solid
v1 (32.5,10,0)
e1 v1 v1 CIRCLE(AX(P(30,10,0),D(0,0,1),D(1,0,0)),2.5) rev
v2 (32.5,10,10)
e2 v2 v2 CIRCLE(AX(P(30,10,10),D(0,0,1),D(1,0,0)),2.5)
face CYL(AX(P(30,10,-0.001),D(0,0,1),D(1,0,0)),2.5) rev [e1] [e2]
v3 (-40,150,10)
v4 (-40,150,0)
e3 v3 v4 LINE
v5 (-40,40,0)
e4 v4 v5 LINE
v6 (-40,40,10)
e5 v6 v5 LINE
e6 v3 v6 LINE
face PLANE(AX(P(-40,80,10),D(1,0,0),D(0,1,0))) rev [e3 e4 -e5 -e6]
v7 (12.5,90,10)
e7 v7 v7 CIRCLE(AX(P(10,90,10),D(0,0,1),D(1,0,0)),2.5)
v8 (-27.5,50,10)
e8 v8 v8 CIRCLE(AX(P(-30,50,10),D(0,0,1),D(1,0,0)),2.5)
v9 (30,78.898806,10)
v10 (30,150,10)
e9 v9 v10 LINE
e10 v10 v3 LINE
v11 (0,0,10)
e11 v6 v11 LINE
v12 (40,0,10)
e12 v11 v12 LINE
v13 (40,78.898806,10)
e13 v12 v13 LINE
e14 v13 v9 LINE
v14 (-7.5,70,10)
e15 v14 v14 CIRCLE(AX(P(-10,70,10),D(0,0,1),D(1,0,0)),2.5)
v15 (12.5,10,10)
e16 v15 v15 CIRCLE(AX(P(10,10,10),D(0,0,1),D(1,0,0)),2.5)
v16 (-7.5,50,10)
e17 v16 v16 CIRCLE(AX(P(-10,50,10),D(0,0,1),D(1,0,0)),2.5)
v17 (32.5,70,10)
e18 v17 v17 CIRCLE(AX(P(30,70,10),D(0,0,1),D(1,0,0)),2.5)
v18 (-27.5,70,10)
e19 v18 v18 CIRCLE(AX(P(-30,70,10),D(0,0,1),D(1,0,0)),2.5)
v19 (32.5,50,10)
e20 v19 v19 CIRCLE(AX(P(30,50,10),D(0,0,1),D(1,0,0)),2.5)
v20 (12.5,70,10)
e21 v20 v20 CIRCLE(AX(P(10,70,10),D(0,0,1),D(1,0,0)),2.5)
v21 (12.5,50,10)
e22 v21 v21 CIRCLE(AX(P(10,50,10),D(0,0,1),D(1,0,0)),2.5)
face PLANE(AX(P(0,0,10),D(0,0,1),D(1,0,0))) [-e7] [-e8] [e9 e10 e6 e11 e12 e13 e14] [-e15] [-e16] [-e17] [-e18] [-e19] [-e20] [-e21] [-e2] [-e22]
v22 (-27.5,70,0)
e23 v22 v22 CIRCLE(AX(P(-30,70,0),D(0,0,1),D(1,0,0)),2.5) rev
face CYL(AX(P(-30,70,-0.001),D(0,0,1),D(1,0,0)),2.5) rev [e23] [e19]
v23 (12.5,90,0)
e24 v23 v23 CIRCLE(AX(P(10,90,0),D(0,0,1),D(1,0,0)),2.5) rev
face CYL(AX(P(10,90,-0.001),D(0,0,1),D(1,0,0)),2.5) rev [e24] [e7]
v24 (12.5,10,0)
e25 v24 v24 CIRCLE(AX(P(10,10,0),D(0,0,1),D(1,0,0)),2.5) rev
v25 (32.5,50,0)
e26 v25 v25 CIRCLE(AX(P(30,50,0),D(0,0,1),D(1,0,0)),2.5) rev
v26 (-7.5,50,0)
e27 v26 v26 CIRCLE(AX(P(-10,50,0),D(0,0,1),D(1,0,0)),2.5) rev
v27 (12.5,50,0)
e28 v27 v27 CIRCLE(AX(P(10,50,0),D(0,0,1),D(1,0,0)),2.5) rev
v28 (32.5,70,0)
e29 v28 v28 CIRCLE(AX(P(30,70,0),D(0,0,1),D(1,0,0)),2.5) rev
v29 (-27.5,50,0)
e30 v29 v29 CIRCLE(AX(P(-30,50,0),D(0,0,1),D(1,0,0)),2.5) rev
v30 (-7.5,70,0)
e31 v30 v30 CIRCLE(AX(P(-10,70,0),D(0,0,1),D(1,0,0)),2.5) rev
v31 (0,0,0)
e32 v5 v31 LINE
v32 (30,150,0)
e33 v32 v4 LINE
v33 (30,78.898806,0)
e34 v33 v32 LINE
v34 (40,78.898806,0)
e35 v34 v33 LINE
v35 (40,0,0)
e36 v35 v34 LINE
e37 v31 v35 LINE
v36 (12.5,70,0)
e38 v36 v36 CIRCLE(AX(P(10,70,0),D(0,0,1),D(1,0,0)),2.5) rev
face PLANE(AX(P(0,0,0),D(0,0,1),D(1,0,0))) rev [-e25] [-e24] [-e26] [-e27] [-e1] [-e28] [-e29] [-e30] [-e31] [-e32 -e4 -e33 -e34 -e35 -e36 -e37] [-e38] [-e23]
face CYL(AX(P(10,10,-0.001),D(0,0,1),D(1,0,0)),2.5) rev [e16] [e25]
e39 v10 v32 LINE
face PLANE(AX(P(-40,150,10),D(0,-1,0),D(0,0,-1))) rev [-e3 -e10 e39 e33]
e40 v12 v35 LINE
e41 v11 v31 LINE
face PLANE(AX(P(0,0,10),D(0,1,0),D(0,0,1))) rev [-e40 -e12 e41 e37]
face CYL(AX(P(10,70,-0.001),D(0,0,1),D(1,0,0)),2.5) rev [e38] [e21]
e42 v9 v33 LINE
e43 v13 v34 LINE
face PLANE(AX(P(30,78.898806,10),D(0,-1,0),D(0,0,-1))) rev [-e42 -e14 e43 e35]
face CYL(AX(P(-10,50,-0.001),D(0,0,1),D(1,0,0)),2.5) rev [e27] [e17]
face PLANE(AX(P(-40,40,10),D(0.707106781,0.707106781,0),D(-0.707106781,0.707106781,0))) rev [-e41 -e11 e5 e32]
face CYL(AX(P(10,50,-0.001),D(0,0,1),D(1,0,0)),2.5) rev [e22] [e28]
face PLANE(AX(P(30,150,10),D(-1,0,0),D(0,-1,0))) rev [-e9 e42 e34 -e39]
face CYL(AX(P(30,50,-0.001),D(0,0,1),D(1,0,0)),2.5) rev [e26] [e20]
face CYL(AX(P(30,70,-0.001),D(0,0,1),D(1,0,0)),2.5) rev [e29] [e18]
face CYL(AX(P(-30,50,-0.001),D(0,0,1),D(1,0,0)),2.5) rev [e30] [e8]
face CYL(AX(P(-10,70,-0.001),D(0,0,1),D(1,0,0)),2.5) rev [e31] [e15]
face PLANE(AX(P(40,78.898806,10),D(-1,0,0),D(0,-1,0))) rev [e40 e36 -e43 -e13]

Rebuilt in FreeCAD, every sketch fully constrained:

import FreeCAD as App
import Part
import Sketcher
Q = App.Units.Quantity


def add_polygon(sketch, points):
    """Adds a closed chain of lines whose ends are joined by coincident constraints."""
    first, n = sketch.GeometryCount, len(points)
    for a, b in zip(points, points[1:] + points[:1]):
        sketch.addGeometry(Part.LineSegment(App.Vector(*a, 0), App.Vector(*b, 0)), False)
    for i in range(n):
        sketch.addConstraint(Sketcher.Constraint("Coincident", first + i, 2, first + (i + 1) % n, 1))

doc = App.newDocument("Part")
body = doc.addObject("PartDesign::Body", "Body")

# Sketch on XY plane
sketch1 = doc.addObject("Sketcher::SketchObject", "Sketch")
body.addObject(sketch1)
sketch1.AttachmentSupport = (doc.XY_Plane, [""])
sketch1.MapMode = "FlatFace"
add_polygon(sketch1, [(0, 0), (40, 0), (40, 78.898806), (30, 78.898806), (30, 150), (-40, 150), (-40, 40)])  # lines 0-6
sketch1.addConstraint(Sketcher.Constraint("Horizontal", 0))
sketch1.addConstraint(Sketcher.Constraint("Vertical", 1))
sketch1.addConstraint(Sketcher.Constraint("Horizontal", 2))
sketch1.addConstraint(Sketcher.Constraint("Vertical", 3))
sketch1.addConstraint(Sketcher.Constraint("Horizontal", 4))
sketch1.addConstraint(Sketcher.Constraint("Vertical", 5))
sketch1.addConstraint(Sketcher.Constraint("Coincident", 6, 2, -1, 1))
sketch1.addConstraint(Sketcher.Constraint("DistanceX", 0, 1, 0, 2, Q("40 mm")))
sketch1.addConstraint(Sketcher.Constraint("DistanceX", 2, 2, 2, 1, Q("10 mm")))
sketch1.addConstraint(Sketcher.Constraint("DistanceX", 4, 2, 4, 1, Q("70 mm")))
sketch1.addConstraint(Sketcher.Constraint("DistanceY", 5, 2, 5, 1, Q("110 mm")))
sketch1.addConstraint(Sketcher.Constraint("Angle", 6, Q("-45 deg")))
sketch1.addConstraint(Sketcher.Constraint("DistanceY", 1, 1, 1, 2, Q("78.898806 mm")))
pad1 = doc.addObject("PartDesign::Pad", "Pad")
body.addObject(pad1)
pad1.Profile = sketch1
pad1.Length = 10

# Sketch on XY plane
sketch2 = doc.addObject("Sketcher::SketchObject", "Sketch001")
body.addObject(sketch2)
sketch2.AttachmentSupport = (doc.XY_Plane, [""])
sketch2.MapMode = "FlatFace"
sketch2.AttachmentOffset = App.Placement(App.Vector(0, 0, 10), App.Rotation())
sketch2.addGeometry(Part.Circle(App.Vector(-30, 70, 0), App.Vector(0, 0, 1), 2.5), False)
sketch2.addConstraint(Sketcher.Constraint("Diameter", 0, Q("5 mm")))
sketch2.addConstraint(Sketcher.Constraint("DistanceX", 0, 3, -1, 1, Q("30 mm")))
sketch2.addConstraint(Sketcher.Constraint("DistanceY", -1, 1, 0, 3, Q("70 mm")))
pocket1 = doc.addObject("PartDesign::Pocket", "Pocket")
body.addObject(pocket1)
pocket1.Profile = sketch2
pocket1.Type = "UpToFirst"

# Sketch on XY plane
sketch3 = doc.addObject("Sketcher::SketchObject", "Sketch002")
body.addObject(sketch3)
sketch3.AttachmentSupport = (doc.XY_Plane, [""])
sketch3.MapMode = "FlatFace"
sketch3.AttachmentOffset = App.Placement(App.Vector(0, 0, 10), App.Rotation())
sketch3.addGeometry(Part.Circle(App.Vector(-10, 70, 0), App.Vector(0, 0, 1), 2.5), False)
sketch3.addConstraint(Sketcher.Constraint("Diameter", 0, Q("5 mm")))
sketch3.addConstraint(Sketcher.Constraint("DistanceX", 0, 3, -1, 1, Q("10 mm")))
sketch3.addConstraint(Sketcher.Constraint("DistanceY", -1, 1, 0, 3, Q("70 mm")))
pocket2 = doc.addObject("PartDesign::Pocket", "Pocket001")
body.addObject(pocket2)
pocket2.Profile = sketch3
pocket2.Type = "UpToFirst"

# Sketch on XY plane
sketch4 = doc.addObject("Sketcher::SketchObject", "Sketch003")
body.addObject(sketch4)
sketch4.AttachmentSupport = (doc.XY_Plane, [""])
sketch4.MapMode = "FlatFace"
sketch4.AttachmentOffset = App.Placement(App.Vector(0, 0, 10), App.Rotation())
sketch4.addGeometry(Part.Circle(App.Vector(-30, 50, 0), App.Vector(0, 0, 1), 2.5), False)
sketch4.addConstraint(Sketcher.Constraint("Diameter", 0, Q("5 mm")))
sketch4.addConstraint(Sketcher.Constraint("DistanceX", 0, 3, -1, 1, Q("30 mm")))
sketch4.addConstraint(Sketcher.Constraint("DistanceY", -1, 1, 0, 3, Q("50 mm")))
pocket3 = doc.addObject("PartDesign::Pocket", "Pocket002")
body.addObject(pocket3)
pocket3.Profile = sketch4
pocket3.Type = "UpToFirst"

# Sketch on XY plane
sketch5 = doc.addObject("Sketcher::SketchObject", "Sketch004")
body.addObject(sketch5)
sketch5.AttachmentSupport = (doc.XY_Plane, [""])
sketch5.MapMode = "FlatFace"
sketch5.AttachmentOffset = App.Placement(App.Vector(0, 0, 10), App.Rotation())
sketch5.addGeometry(Part.Circle(App.Vector(-10, 50, 0), App.Vector(0, 0, 1), 2.5), False)
sketch5.addConstraint(Sketcher.Constraint("Diameter", 0, Q("5 mm")))
sketch5.addConstraint(Sketcher.Constraint("DistanceX", 0, 3, -1, 1, Q("10 mm")))
sketch5.addConstraint(Sketcher.Constraint("DistanceY", -1, 1, 0, 3, Q("50 mm")))
pocket4 = doc.addObject("PartDesign::Pocket", "Pocket003")
body.addObject(pocket4)
pocket4.Profile = sketch5
pocket4.Type = "UpToFirst"

# Sketch on XY plane
sketch6 = doc.addObject("Sketcher::SketchObject", "Sketch005")
body.addObject(sketch6)
sketch6.AttachmentSupport = (doc.XY_Plane, [""])
sketch6.MapMode = "FlatFace"
sketch6.AttachmentOffset = App.Placement(App.Vector(0, 0, 10), App.Rotation())
sketch6.addGeometry(Part.Circle(App.Vector(10, 50, 0), App.Vector(0, 0, 1), 2.5), False)
sketch6.addConstraint(Sketcher.Constraint("Diameter", 0, Q("5 mm")))
sketch6.addConstraint(Sketcher.Constraint("DistanceX", -1, 1, 0, 3, Q("10 mm")))
sketch6.addConstraint(Sketcher.Constraint("DistanceY", -1, 1, 0, 3, Q("50 mm")))
pocket5 = doc.addObject("PartDesign::Pocket", "Pocket004")
body.addObject(pocket5)
pocket5.Profile = sketch6
pocket5.Type = "UpToFirst"

# Sketch on XY plane
sketch7 = doc.addObject("Sketcher::SketchObject", "Sketch006")
body.addObject(sketch7)
sketch7.AttachmentSupport = (doc.XY_Plane, [""])
sketch7.MapMode = "FlatFace"
sketch7.AttachmentOffset = App.Placement(App.Vector(0, 0, 10), App.Rotation())
sketch7.addGeometry(Part.Circle(App.Vector(30, 50, 0), App.Vector(0, 0, 1), 2.5), False)
sketch7.addConstraint(Sketcher.Constraint("Diameter", 0, Q("5 mm")))
sketch7.addConstraint(Sketcher.Constraint("DistanceX", -1, 1, 0, 3, Q("30 mm")))
sketch7.addConstraint(Sketcher.Constraint("DistanceY", -1, 1, 0, 3, Q("50 mm")))
pocket6 = doc.addObject("PartDesign::Pocket", "Pocket005")
body.addObject(pocket6)
pocket6.Profile = sketch7
pocket6.Type = "UpToFirst"

# Sketch on XY plane
sketch8 = doc.addObject("Sketcher::SketchObject", "Sketch007")
body.addObject(sketch8)
sketch8.AttachmentSupport = (doc.XY_Plane, [""])
sketch8.MapMode = "FlatFace"
sketch8.AttachmentOffset = App.Placement(App.Vector(0, 0, 10), App.Rotation())
sketch8.addGeometry(Part.Circle(App.Vector(10, 10, 0), App.Vector(0, 0, 1), 2.5), False)
sketch8.addConstraint(Sketcher.Constraint("Diameter", 0, Q("5 mm")))
sketch8.addConstraint(Sketcher.Constraint("DistanceX", -1, 1, 0, 3, Q("10 mm")))
sketch8.addConstraint(Sketcher.Constraint("DistanceY", -1, 1, 0, 3, Q("10 mm")))
pocket7 = doc.addObject("PartDesign::Pocket", "Pocket006")
body.addObject(pocket7)
pocket7.Profile = sketch8
pocket7.Type = "UpToFirst"

# Sketch on XY plane
sketch9 = doc.addObject("Sketcher::SketchObject", "Sketch008")
body.addObject(sketch9)
sketch9.AttachmentSupport = (doc.XY_Plane, [""])
sketch9.MapMode = "FlatFace"
sketch9.AttachmentOffset = App.Placement(App.Vector(0, 0, 10), App.Rotation())
sketch9.addGeometry(Part.Circle(App.Vector(30, 10, 0), App.Vector(0, 0, 1), 2.5), False)
sketch9.addConstraint(Sketcher.Constraint("Diameter", 0, Q("5 mm")))
sketch9.addConstraint(Sketcher.Constraint("DistanceX", -1, 1, 0, 3, Q("30 mm")))
sketch9.addConstraint(Sketcher.Constraint("DistanceY", -1, 1, 0, 3, Q("10 mm")))
pocket8 = doc.addObject("PartDesign::Pocket", "Pocket007")
body.addObject(pocket8)
pocket8.Profile = sketch9
pocket8.Type = "UpToFirst"

# Sketch on XY plane
sketch10 = doc.addObject("Sketcher::SketchObject", "Sketch009")
body.addObject(sketch10)
sketch10.AttachmentSupport = (doc.XY_Plane, [""])
sketch10.MapMode = "FlatFace"
sketch10.AttachmentOffset = App.Placement(App.Vector(0, 0, 10), App.Rotation())
sketch10.addGeometry(Part.Circle(App.Vector(10, 90, 0), App.Vector(0, 0, 1), 2.5), False)
sketch10.addConstraint(Sketcher.Constraint("Diameter", 0, Q("5 mm")))
sketch10.addConstraint(Sketcher.Constraint("DistanceX", -1, 1, 0, 3, Q("10 mm")))
sketch10.addConstraint(Sketcher.Constraint("DistanceY", -1, 1, 0, 3, Q("90 mm")))
pocket9 = doc.addObject("PartDesign::Pocket", "Pocket008")
body.addObject(pocket9)
pocket9.Profile = sketch10
pocket9.Type = "UpToFirst"

# Sketch on XY plane
sketch11 = doc.addObject("Sketcher::SketchObject", "Sketch010")
body.addObject(sketch11)
sketch11.AttachmentSupport = (doc.XY_Plane, [""])
sketch11.MapMode = "FlatFace"
sketch11.AttachmentOffset = App.Placement(App.Vector(0, 0, 10), App.Rotation())
sketch11.addGeometry(Part.Circle(App.Vector(10, 70, 0), App.Vector(0, 0, 1), 2.5), False)
sketch11.addConstraint(Sketcher.Constraint("Diameter", 0, Q("5 mm")))
sketch11.addConstraint(Sketcher.Constraint("DistanceX", -1, 1, 0, 3, Q("10 mm")))
sketch11.addConstraint(Sketcher.Constraint("DistanceY", -1, 1, 0, 3, Q("70 mm")))
pocket10 = doc.addObject("PartDesign::Pocket", "Pocket009")
body.addObject(pocket10)
pocket10.Profile = sketch11
pocket10.Type = "UpToFirst"

# Sketch on XY plane
sketch12 = doc.addObject("Sketcher::SketchObject", "Sketch011")
body.addObject(sketch12)
sketch12.AttachmentSupport = (doc.XY_Plane, [""])
sketch12.MapMode = "FlatFace"
sketch12.AttachmentOffset = App.Placement(App.Vector(0, 0, 10), App.Rotation())
sketch12.addGeometry(Part.Circle(App.Vector(30, 70, 0), App.Vector(0, 0, 1), 2.5), False)
sketch12.addConstraint(Sketcher.Constraint("Diameter", 0, Q("5 mm")))
sketch12.addConstraint(Sketcher.Constraint("DistanceX", -1, 1, 0, 3, Q("30 mm")))
sketch12.addConstraint(Sketcher.Constraint("DistanceY", -1, 1, 0, 3, Q("70 mm")))
pocket11 = doc.addObject("PartDesign::Pocket", "Pocket010")
body.addObject(pocket11)
pocket11.Profile = sketch12
pocket11.Type = "UpToFirst"

doc.recompute()
